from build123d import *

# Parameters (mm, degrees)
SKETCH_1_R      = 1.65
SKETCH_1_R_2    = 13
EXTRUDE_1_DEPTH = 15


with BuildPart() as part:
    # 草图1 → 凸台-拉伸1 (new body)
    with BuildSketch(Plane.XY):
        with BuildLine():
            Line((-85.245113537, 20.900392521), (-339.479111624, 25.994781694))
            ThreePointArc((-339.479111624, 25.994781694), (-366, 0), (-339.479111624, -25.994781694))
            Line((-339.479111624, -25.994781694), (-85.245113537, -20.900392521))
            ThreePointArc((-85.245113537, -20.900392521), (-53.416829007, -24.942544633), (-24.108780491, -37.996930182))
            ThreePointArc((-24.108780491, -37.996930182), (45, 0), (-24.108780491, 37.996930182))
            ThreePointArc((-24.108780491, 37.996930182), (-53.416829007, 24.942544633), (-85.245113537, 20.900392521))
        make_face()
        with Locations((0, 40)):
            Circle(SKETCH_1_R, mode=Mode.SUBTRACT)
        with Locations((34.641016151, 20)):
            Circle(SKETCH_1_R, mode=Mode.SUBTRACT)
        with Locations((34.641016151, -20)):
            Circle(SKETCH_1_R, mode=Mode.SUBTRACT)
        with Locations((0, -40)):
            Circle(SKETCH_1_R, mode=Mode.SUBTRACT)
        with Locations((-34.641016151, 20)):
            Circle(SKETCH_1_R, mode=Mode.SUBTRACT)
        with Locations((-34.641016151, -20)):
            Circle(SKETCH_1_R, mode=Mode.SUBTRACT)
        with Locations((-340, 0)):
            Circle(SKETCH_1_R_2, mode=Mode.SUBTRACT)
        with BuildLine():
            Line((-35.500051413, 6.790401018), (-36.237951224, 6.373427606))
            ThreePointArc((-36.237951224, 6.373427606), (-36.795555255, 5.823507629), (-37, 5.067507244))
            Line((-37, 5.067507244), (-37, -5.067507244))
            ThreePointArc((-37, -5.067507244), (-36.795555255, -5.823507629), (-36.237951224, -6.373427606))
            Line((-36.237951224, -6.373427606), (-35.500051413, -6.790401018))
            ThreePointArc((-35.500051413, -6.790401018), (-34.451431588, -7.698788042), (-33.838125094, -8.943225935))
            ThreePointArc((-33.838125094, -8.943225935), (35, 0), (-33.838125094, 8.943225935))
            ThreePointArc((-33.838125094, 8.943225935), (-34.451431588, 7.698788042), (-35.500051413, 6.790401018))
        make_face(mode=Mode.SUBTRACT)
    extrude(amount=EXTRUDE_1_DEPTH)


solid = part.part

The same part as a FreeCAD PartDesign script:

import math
import FreeCAD as App
import Part
import Sketcher
from FreeCAD import Vector
Q = App.Units.Quantity

doc = App.newDocument("Part")
body = doc.addObject("PartDesign::Body", "Body")

# Sketch on XY plane
sketch1 = doc.addObject("Sketcher::SketchObject", "Sketch")
body.addObject(sketch1)
sketch1.AttachmentSupport = (doc.XY_Plane, [""])
sketch1.MapMode = "FlatFace"
sketch1.addGeometry([
    Part.LineSegment(Vector(-85.2, 20.9, 0), Vector(-339.5, 26, 0)),  # 0
    Part.ArcOfCircle(Part.Circle(Vector(-340, 0, 0), Vector(0, 0, 1), 26), math.radians(89), math.radians(271)),  # 1
    Part.LineSegment(Vector(-339.5, -26, 0), Vector(-85.2, -20.9, 0)),  # 2
    Part.ArcOfCircle(Part.Circle(Vector(-83, -130.9, 0), Vector(0, 0, 1), 110), math.radians(58), math.radians(91)),  # 3
    Part.ArcOfCircle(Part.Circle(Vector(0, 0, 0), Vector(0, 0, 1), 45), math.radians(-122), math.radians(122)),  # 4
    Part.ArcOfCircle(Part.Circle(Vector(-83, 130.9, 0), Vector(0, 0, 1), 110), math.radians(-91), math.radians(-58)),  # 5
    Part.Circle(Vector(0, -40, 0), Vector(0, 0, 1), 1.6),  # 6
    Part.Circle(Vector(-34.6, -20, 0), Vector(0, 0, 1), 1.6),  # 7
    Part.Circle(Vector(34.6, -20, 0), Vector(0, 0, 1), 1.6),  # 8
    Part.Circle(Vector(-340, 0, 0), Vector(0, 0, 1), 13),  # 9
    Part.LineSegment(Vector(-36.2, 6.4, 0), Vector(-35.5, 6.8, 0)),  # 10
    Part.ArcOfCircle(Part.Circle(Vector(-37.2, 9.8, 0), Vector(0, 0, 1), 3.5), math.radians(-61), math.radians(-15)),  # 11
    Part.ArcOfCircle(Part.Circle(Vector(0, 0, 0), Vector(0, 0, 1), 35), math.radians(-165), math.radians(165)),  # 12
    Part.ArcOfCircle(Part.Circle(Vector(-37.2, -9.8, 0), Vector(0, 0, 1), 3.5), math.radians(15), math.radians(61)),  # 13
    Part.LineSegment(Vector(-35.5, -6.8, 0), Vector(-36.2, -6.4, 0)),  # 14
    Part.ArcOfCircle(Part.Circle(Vector(-35.5, -5.1, 0), Vector(0, 0, 1), 1.5), math.radians(180), math.radians(241)),  # 15
    Part.LineSegment(Vector(-37, -5.1, 0), Vector(-37, 5.1, 0)),  # 16
    Part.ArcOfCircle(Part.Circle(Vector(-35.5, 5.1, 0), Vector(0, 0, 1), 1.5), math.radians(119), math.radians(180)),  # 17
    Part.Circle(Vector(-34.6, 20, 0), Vector(0, 0, 1), 1.6),  # 18
    Part.Circle(Vector(34.6, 20, 0), Vector(0, 0, 1), 1.6),  # 19
    Part.Circle(Vector(0, 40, 0), Vector(0, 0, 1), 1.6),  # 20
], False)
sketch1.addConstraint([
    Sketcher.Constraint("Tangent", 0, 2, 1, 1),
    Sketcher.Constraint("Tangent", 1, 2, 2, 1),
    Sketcher.Constraint("Tangent", 2, 2, 3, 2),
    Sketcher.Constraint("Tangent", 3, 1, 4, 1),
    Sketcher.Constraint("Tangent", 4, 2, 5, 2),
    Sketcher.Constraint("Tangent", 5, 1, 0, 1),
    Sketcher.Constraint("Tangent", 10, 2, 11, 1),
    Sketcher.Constraint("Tangent", 11, 2, 12, 2),
    Sketcher.Constraint("Tangent", 12, 1, 13, 1),
    Sketcher.Constraint("Tangent", 13, 2, 14, 1),
    Sketcher.Constraint("Tangent", 14, 2, 15, 2),
    Sketcher.Constraint("Tangent", 15, 1, 16, 1),
    Sketcher.Constraint("Tangent", 16, 2, 17, 2),
    Sketcher.Constraint("Tangent", 17, 1, 10, 1),
    Sketcher.Constraint("Vertical", 16),
    Sketcher.Constraint("Coincident", 4, 3, -1, 1),
    Sketcher.Constraint("Coincident", 12, 3, -1, 1),
    Sketcher.Constraint("Coincident", 9, 3, 1, 3),
    Sketcher.Constraint("Equal", 3, 5),
    Sketcher.Constraint("Equal", 6, 7),
    Sketcher.Constraint("Equal", 7, 8),
    Sketcher.Constraint("Equal", 11, 13),
    Sketcher.Constraint("Equal", 15, 17),
    Sketcher.Constraint("Equal", 8, 18),
    Sketcher.Constraint("Equal", 18, 19),
    Sketcher.Constraint("Equal", 19, 20),
    Sketcher.Constraint("Symmetric", 8, 3, 18, 3, -1, 1),
    Sketcher.Constraint("Symmetric", 7, 3, 19, 3, -1, 1),
    Sketcher.Constraint("Symmetric", 6, 3, 20, 3, -1, 1),
    Sketcher.Constraint("Symmetric", 7, 3, 8, 3, -2),
    Sketcher.Constraint("Symmetric", 0, 2, 1, 2, -1),
    Sketcher.Constraint("Symmetric", 10, 2, 13, 2, -1),
    Sketcher.Constraint("PointOnObject", 6, 3, -2),
    Sketcher.Constraint("Diameter", 9, 26.0),
    Sketcher.Constraint("Radius", 1, 26.0),
    Sketcher.Constraint("Radius", 3, 110.0),
    Sketcher.Constraint("Radius", 4, 45.0),
    Sketcher.Constraint("Radius", 12, 35.0),
    Sketcher.Constraint("Diameter", 6, 3.3),
    Sketcher.Constraint("Radius", 11, 3.5),
    Sketcher.Constraint("Radius", 15, 1.5),
    Sketcher.Constraint("DistanceX", 1, 3, -1, 1, 340.0),
    Sketcher.Constraint("DistanceY", 6, 3, -1, 1, 40.0),
    Sketcher.Constraint("DistanceY", 7, 3, -1, 1, 20.0),
    Sketcher.Constraint("DistanceX", 15, 1, -1, 1, 37.0),
    Sketcher.Constraint("Angle", 10, Q("29.469981 deg")),
    Sketcher.Constraint("DistanceY", -1, 1, 10, 2, 6.790401),
    Sketcher.Constraint("DistanceY", 2, 2, 17, 3, 25.9679),
    Sketcher.Constraint("DistanceX", 3, 3, 7, 3, 48.400339),
])
pad1 = doc.addObject("PartDesign::Pad", "Pad")
body.addObject(pad1)
pad1.Profile = sketch1
pad1.Length = 15

doc.recompute()
